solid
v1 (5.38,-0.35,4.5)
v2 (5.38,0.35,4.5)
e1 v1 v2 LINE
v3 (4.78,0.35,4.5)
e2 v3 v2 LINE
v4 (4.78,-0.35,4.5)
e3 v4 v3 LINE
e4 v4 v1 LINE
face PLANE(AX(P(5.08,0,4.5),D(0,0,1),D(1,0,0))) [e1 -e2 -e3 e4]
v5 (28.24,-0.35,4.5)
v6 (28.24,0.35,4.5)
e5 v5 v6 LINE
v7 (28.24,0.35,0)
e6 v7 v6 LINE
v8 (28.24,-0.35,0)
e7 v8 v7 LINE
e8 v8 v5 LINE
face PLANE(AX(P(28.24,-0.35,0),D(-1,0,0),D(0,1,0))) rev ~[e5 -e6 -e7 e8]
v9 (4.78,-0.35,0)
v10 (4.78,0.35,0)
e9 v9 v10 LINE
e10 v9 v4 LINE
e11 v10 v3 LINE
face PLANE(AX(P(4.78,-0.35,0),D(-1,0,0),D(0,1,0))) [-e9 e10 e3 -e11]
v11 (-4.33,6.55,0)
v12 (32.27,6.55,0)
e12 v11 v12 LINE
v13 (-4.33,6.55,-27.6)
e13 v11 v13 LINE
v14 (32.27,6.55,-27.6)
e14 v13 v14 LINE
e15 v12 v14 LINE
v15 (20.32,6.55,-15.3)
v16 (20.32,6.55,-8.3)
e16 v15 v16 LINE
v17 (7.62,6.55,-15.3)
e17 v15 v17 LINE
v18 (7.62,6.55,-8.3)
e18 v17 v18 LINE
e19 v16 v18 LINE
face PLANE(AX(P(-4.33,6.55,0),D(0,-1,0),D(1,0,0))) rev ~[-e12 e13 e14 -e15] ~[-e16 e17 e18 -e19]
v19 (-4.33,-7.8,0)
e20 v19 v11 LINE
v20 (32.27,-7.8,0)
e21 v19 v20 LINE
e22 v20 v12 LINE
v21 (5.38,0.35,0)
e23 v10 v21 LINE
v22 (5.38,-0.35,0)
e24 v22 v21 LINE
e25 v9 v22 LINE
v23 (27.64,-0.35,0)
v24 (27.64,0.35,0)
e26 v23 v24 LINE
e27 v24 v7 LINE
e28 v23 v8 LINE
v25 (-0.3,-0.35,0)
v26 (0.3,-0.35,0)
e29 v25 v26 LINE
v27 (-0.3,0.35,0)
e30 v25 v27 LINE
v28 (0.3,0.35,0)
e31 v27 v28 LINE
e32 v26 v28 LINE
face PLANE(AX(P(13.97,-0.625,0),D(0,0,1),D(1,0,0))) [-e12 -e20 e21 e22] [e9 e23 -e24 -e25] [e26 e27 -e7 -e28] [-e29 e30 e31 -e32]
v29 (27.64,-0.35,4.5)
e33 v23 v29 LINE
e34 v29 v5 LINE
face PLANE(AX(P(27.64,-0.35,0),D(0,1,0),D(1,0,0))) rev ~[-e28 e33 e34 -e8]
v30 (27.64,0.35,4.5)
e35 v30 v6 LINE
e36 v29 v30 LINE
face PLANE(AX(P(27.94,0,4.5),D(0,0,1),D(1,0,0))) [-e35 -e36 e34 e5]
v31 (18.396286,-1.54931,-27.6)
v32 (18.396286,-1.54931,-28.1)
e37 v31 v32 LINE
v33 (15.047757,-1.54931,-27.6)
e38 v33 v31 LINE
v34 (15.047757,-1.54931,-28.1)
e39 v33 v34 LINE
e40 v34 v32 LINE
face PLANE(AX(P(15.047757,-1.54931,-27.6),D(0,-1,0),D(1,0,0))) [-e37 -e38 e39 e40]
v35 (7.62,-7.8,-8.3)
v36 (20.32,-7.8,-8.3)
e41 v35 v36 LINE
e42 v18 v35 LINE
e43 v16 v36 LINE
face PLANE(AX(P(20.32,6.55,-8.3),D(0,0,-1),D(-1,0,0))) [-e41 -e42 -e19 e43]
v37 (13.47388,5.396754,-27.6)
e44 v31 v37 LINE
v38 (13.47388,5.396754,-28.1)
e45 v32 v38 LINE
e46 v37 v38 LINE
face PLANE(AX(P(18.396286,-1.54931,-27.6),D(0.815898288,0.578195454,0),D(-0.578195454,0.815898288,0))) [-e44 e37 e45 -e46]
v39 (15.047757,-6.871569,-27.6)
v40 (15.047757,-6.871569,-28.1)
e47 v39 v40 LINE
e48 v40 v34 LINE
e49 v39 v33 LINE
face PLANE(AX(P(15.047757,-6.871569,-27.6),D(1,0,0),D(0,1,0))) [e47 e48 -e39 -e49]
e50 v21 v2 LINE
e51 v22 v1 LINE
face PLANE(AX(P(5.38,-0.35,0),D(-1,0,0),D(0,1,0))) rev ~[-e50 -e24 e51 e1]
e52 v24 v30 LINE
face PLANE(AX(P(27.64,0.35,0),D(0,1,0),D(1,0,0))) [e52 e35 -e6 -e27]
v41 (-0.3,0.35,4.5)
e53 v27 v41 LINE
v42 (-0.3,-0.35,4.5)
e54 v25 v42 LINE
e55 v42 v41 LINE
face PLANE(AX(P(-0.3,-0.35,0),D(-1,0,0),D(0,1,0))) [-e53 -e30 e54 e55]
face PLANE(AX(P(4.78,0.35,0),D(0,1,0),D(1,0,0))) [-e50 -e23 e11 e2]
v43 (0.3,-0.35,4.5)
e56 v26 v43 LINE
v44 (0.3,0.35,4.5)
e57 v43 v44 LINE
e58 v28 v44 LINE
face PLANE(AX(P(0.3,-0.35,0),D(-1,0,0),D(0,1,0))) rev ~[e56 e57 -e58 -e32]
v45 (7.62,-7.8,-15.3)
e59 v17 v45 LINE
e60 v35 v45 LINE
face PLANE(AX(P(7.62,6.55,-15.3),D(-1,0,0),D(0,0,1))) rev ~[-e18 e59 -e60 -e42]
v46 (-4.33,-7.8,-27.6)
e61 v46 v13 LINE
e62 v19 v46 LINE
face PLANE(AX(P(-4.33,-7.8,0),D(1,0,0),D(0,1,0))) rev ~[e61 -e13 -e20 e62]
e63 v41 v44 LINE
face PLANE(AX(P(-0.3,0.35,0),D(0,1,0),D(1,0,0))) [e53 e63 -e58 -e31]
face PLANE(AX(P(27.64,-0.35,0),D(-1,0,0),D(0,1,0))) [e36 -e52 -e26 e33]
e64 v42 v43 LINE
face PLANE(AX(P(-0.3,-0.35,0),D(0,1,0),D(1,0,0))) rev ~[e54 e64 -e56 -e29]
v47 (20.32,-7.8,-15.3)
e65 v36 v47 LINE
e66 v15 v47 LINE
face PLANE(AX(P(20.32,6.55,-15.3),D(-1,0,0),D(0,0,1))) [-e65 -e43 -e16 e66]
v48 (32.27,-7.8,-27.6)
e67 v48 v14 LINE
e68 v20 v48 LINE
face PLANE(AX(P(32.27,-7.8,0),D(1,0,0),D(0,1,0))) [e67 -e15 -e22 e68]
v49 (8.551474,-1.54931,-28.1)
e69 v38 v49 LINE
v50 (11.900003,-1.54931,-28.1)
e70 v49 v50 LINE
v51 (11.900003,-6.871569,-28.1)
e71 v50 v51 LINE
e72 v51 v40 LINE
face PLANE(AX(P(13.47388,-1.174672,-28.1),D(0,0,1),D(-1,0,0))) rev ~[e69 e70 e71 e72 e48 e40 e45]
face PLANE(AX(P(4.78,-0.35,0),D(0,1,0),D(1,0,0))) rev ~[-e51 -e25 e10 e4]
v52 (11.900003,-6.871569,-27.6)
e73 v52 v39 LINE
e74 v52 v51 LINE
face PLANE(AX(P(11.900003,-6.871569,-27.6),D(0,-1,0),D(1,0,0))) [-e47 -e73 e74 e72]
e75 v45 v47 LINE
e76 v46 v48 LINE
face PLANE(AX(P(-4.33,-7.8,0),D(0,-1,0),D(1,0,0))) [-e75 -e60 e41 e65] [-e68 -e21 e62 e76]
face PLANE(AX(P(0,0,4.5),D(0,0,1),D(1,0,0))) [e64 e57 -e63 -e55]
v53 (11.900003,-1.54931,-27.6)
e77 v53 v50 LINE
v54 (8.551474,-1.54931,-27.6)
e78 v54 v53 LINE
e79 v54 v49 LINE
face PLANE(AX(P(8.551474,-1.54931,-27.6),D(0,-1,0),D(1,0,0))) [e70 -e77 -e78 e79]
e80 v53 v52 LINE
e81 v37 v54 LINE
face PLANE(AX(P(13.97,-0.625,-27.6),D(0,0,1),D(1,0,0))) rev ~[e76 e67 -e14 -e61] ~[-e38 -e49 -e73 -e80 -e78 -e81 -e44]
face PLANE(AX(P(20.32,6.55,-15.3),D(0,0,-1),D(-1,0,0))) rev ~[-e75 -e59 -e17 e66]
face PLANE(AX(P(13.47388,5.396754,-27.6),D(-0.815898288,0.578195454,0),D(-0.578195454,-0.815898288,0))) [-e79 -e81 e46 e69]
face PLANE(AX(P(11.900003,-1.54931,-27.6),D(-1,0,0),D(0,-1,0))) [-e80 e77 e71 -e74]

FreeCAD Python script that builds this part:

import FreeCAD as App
import Part
import Sketcher

V = App.Vector


def add_polygon(sketch, points):
    """Adds a closed chain of lines whose ends are joined by coincident constraints."""
    first, n = sketch.GeometryCount, len(points)
    for a, b in zip(points, points[1:] + points[:1]):
        sketch.addGeometry(Part.LineSegment(App.Vector(*a, 0), App.Vector(*b, 0)), False)
    for i in range(n):
        sketch.addConstraint(Sketcher.Constraint("Coincident", first + i, 2, first + (i + 1) % n, 1))

doc = App.newDocument("Part")
body = doc.addObject("PartDesign::Body", "Body")

# Sketch on XY plane
sketch1 = body.newObject("Sketcher::SketchObject", "Sketch")
sketch1.AttachmentSupport = (doc.getObject("XY_Plane"), [""])
sketch1.MapMode = "FlatFace"
add_polygon(sketch1, [(-4, 7), (-4, -8), (32, -8), (32, 7)])  # lines 0-3
sketch1.addConstraint(Sketcher.Constraint("Vertical", 0))
sketch1.addConstraint(Sketcher.Constraint("Horizontal", 1))
sketch1.addConstraint(Sketcher.Constraint("Vertical", 2))
sketch1.addConstraint(Sketcher.Constraint("Horizontal", 3))
sketch1.addConstraint(Sketcher.Constraint("DistanceX", 1, 1, 1, 2, 36.6))
sketch1.addConstraint(Sketcher.Constraint("DistanceY", 0, 2, 0, 1, 14.35))
sketch1.addConstraint(Sketcher.Constraint("DistanceY", 0, 2, -1, 1, 7.8))
sketch1.addConstraint(Sketcher.Constraint("DistanceX", 0, 2, -1, 1, 4.33))
pad1 = body.newObject("PartDesign::Pad", "Pad")
pad1.Profile = sketch1
pad1.Length = 27.6
pad1.Reversed = True

# Sketch on XZ plane
sketch2 = body.newObject("Sketcher::SketchObject", "Sketch001")
sketch2.AttachmentSupport = (doc.getObject("XZ_Plane"), [""])
sketch2.MapMode = "FlatFace"
sketch2.AttachmentOffset = App.Placement(V(0, 0, -6.55), App.Rotation())
add_polygon(sketch2, [(20, -8), (20, -15), (8, -15), (8, -8)])  # lines 0-3
sketch2.addConstraint(Sketcher.Constraint("Vertical", 0))
sketch2.addConstraint(Sketcher.Constraint("Horizontal", 1))
sketch2.addConstraint(Sketcher.Constraint("Vertical", 2))
sketch2.addConstraint(Sketcher.Constraint("Horizontal", 3))
sketch2.addConstraint(Sketcher.Constraint("DistanceY", 0, 2, 0, 1, 7.0))
sketch2.addConstraint(Sketcher.Constraint("DistanceX", 1, 2, 1, 1, 12.7))
sketch2.addConstraint(Sketcher.Constraint("DistanceY", 0, 2, -1, 1, 15.3))
sketch2.addConstraint(Sketcher.Constraint("DistanceX", -1, 1, 0, 2, 20.32))
pocket1 = body.newObject("PartDesign::Pocket", "Pocket")
pocket1.Profile = sketch2
pocket1.Type = "ThroughAll"
pocket1.Reversed = True

# Sketch on XY plane
sketch3 = body.newObject("Sketcher::SketchObject", "Sketch002")
sketch3.AttachmentSupport = (doc.getObject("XY_Plane"), [""])
sketch3.MapMode = "FlatFace"
sketch3.AttachmentOffset = App.Placement(V(0, 0, -27.6), App.Rotation())
add_polygon(sketch3, [(15, -6.9), (11.9, -6.9), (11.9, -1.5), (8.6, -1.5), (13.5, 5.4), (18.4, -1.5), (15, -1.5)])  # lines 0-6
sketch3.addConstraint(Sketcher.Constraint("Horizontal", 0))
sketch3.addConstraint(Sketcher.Constraint("Vertical", 1))
sketch3.addConstraint(Sketcher.Constraint("Horizontal", 2))
sketch3.addConstraint(Sketcher.Constraint("Horizontal", 5))
sketch3.addConstraint(Sketcher.Constraint("Vertical", 6))
sketch3.addConstraint(Sketcher.Constraint("Horizontal", 2, 2, 4, 2))
sketch3.addConstraint(Sketcher.Constraint("Equal", 2, 5))
sketch3.addConstraint(Sketcher.Constraint("Equal", 3, 4))
sketch3.addConstraint(Sketcher.Constraint("DistanceX", 2, 2, 2, 1, 3.348529))
sketch3.addConstraint(Sketcher.Constraint("DistanceY", 1, 1, 1, 2, 5.322259))
sketch3.addConstraint(Sketcher.Constraint("DistanceX", 0, 2, 0, 1, 3.147754))
sketch3.addConstraint(Sketcher.Constraint("DistanceY", 0, 2, -1, 1, 6.871569))
sketch3.addConstraint(Sketcher.Constraint("DistanceX", -1, 1, 3, 2, 13.47388))
sketch3.addConstraint(Sketcher.Constraint("Distance", 3, 8.513395))
pad2 = body.newObject("PartDesign::Pad", "Pad001")
pad2.Profile = sketch3
pad2.Length = 0.5
pad2.Reversed = True
body2 = doc.addObject("PartDesign::Body", "Body001")
body2.AllowCompound = True

# Sketch on XY plane
sketch4 = body2.newObject("Sketcher::SketchObject", "Sketch003")
sketch4.AttachmentSupport = (doc.getObject("XY_Plane001"), [""])
sketch4.MapMode = "FlatFace"
add_polygon(sketch4, [(-0.3, 0.3), (-0.3, -0.3), (0.3, -0.3), (0.3, 0.3)])  # lines 0-3
add_polygon(sketch4, [(4.8, 0.3), (4.8, -0.3), (5.4, -0.3), (5.4, 0.3)])  # lines 4-7
add_polygon(sketch4, [(27.6, 0.3), (27.6, -0.3), (28.2, -0.3), (28.2, 0.3)])  # lines 8-11
sketch4.addConstraint(Sketcher.Constraint("Vertical", 0))
sketch4.addConstraint(Sketcher.Constraint("Horizontal", 1))
sketch4.addConstraint(Sketcher.Constraint("Vertical", 2))
sketch4.addConstraint(Sketcher.Constraint("Horizontal", 3))
sketch4.addConstraint(Sketcher.Constraint("Vertical", 4))
sketch4.addConstraint(Sketcher.Constraint("Horizontal", 5))
sketch4.addConstraint(Sketcher.Constraint("Vertical", 6))
sketch4.addConstraint(Sketcher.Constraint("Horizontal", 7))
sketch4.addConstraint(Sketcher.Constraint("Vertical", 8))
sketch4.addConstraint(Sketcher.Constraint("Horizontal", 9))
sketch4.addConstraint(Sketcher.Constraint("Vertical", 10))
sketch4.addConstraint(Sketcher.Constraint("Horizontal", 11))
sketch4.addConstraint(Sketcher.Constraint("Symmetric", 0, 2, 2, 2, -1, 1))
sketch4.addConstraint(Sketcher.Constraint("Horizontal", 1, 2, 4, 2))
sketch4.addConstraint(Sketcher.Constraint("Horizontal", 3, 2, 6, 2))
sketch4.addConstraint(Sketcher.Constraint("Horizontal", 5, 2, 8, 2))
sketch4.addConstraint(Sketcher.Constraint("Horizontal", 7, 2, 10, 2))
sketch4.addConstraint(Sketcher.Constraint("Equal", 3, 5))
sketch4.addConstraint(Sketcher.Constraint("Equal", 7, 9))
sketch4.addConstraint(Sketcher.Constraint("DistanceX", 1, 1, 1, 2, 0.6))
sketch4.addConstraint(Sketcher.Constraint("DistanceY", 0, 2, 0, 1, 0.7))
sketch4.addConstraint(Sketcher.Constraint("DistanceX", -1, 1, 4, 2, 4.78))
sketch4.addConstraint(Sketcher.Constraint("DistanceX", -1, 1, 8, 2, 27.64))
pad3 = body2.newObject("PartDesign::Pad", "Pad002")
pad3.Profile = sketch4
pad3.Length = 4.5
doc.recompute()

boolean = body2.newObject("PartDesign::Boolean", "Boolean")
boolean.Type = "Fuse"
boolean.addObjects([body])

doc.recompute()
